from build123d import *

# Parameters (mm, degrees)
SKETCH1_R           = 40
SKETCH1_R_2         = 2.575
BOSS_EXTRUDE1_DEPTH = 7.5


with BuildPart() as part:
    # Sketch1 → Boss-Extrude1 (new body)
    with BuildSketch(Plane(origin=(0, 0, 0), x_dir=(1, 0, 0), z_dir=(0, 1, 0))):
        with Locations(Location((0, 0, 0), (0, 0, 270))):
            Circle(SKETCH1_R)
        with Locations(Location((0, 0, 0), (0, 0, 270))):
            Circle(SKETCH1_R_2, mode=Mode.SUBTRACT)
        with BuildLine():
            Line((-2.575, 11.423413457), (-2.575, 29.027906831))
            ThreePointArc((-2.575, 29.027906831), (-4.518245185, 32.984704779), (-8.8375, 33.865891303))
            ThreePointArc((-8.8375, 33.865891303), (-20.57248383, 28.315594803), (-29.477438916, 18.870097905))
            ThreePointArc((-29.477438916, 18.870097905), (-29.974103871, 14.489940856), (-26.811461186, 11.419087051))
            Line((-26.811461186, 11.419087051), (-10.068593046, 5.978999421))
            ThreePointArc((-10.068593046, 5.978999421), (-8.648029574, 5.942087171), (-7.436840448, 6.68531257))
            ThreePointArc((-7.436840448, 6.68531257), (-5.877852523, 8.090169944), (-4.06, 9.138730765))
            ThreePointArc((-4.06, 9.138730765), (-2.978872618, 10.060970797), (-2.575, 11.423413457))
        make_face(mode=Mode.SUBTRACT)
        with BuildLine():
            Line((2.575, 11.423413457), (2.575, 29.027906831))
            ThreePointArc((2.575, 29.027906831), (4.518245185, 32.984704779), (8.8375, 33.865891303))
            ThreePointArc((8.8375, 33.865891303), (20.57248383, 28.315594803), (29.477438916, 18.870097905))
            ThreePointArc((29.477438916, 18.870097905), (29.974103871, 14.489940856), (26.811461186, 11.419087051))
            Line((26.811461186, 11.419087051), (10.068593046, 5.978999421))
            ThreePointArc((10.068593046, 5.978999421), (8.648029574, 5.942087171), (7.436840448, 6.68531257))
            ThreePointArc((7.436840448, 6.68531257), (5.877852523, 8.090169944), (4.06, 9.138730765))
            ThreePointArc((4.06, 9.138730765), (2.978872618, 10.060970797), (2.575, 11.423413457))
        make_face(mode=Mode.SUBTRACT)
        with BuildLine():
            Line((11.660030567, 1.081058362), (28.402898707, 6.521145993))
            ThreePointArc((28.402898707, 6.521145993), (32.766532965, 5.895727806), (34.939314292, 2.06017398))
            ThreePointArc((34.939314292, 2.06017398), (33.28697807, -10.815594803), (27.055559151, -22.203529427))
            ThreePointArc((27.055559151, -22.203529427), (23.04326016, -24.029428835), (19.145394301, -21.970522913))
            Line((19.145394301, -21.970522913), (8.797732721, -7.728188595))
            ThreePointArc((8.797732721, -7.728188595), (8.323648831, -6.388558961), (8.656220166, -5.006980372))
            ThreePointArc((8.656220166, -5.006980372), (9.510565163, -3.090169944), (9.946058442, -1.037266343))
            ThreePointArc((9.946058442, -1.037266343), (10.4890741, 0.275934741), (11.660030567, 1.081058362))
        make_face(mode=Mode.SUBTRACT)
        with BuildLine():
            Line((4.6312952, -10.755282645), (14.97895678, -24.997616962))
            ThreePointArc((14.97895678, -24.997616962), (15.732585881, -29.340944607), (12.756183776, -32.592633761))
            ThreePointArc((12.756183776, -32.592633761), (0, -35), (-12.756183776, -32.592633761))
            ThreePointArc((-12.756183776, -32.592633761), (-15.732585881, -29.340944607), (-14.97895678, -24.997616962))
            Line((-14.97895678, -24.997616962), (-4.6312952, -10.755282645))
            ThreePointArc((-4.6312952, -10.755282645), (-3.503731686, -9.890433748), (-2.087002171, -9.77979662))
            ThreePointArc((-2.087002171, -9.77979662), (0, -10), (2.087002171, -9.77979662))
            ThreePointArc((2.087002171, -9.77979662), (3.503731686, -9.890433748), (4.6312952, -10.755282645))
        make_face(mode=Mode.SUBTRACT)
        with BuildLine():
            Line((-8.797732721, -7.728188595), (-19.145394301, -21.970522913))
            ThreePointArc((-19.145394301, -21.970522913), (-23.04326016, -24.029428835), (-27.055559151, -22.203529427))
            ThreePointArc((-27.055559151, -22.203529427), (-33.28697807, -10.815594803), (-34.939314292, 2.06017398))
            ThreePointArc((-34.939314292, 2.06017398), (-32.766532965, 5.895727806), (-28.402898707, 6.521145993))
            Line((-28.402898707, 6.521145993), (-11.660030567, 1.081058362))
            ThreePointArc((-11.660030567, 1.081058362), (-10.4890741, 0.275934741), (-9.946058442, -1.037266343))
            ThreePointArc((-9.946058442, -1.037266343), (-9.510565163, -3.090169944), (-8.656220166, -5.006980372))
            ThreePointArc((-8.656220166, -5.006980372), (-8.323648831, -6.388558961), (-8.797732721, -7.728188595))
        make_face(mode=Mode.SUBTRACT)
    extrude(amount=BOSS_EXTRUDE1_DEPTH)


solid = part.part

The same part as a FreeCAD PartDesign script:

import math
import FreeCAD as App
import Part
import Sketcher
from FreeCAD import Vector
Q = App.Units.Quantity

doc = App.newDocument("Part")
body = doc.addObject("PartDesign::Body", "Body")

# Sketch on XZ plane
sketch1 = doc.addObject("Sketcher::SketchObject", "Sketch")
body.addObject(sketch1)
sketch1.AttachmentSupport = (doc.XZ_Plane, [""])
sketch1.MapMode = "FlatFace"
sketch1.addGeometry(Part.Circle(Vector(0, 0, 0), Vector(0, 0, 1), 40), False)
sketch1.addGeometry(Part.LineSegment(Vector(-2.6, -29, 0), Vector(-2.6, -11.4, 0)), False)
sketch1.addGeometry(Part.ArcOfCircle(Part.Circle(Vector(-5.1, -11.4, 0), Vector(0, 0, 1), 2.5), math.radians(0), math.radians(66)), False)
sketch1.addGeometry(Part.ArcOfCircle(Part.Circle(Vector(0, 0, 0), Vector(0, 0, 1), 10), math.radians(-138), math.radians(-114)), False)
sketch1.addGeometry(Part.ArcOfCircle(Part.Circle(Vector(-9.3, -8.4, 0), Vector(0, 0, 1), 2.5), math.radians(42), math.radians(108)), False)
sketch1.addGeometry(Part.LineSegment(Vector(-10.1, -6, 0), Vector(-26.8, -11.4, 0)), False)
sketch1.addGeometry(Part.ArcOfCircle(Part.Circle(Vector(-25.3, -16.2, 0), Vector(0, 0, 1), 5), math.radians(108), math.radians(213)), False)
sketch1.addGeometry(Part.ArcOfCircle(Part.Circle(Vector(0, 0, 0), Vector(0, 0, 1), 35), math.radians(-147), math.radians(-105)), False)
sketch1.addGeometry(Part.ArcOfCircle(Part.Circle(Vector(-7.6, -29, 0), Vector(0, 0, 1), 5), math.radians(-105), math.radians(0)), False)
sketch1.addGeometry(Part.ArcOfCircle(Part.Circle(Vector(-10.8, 6.3, 0), Vector(0, 0, 1), 2.5), math.radians(-30), math.radians(36)), False)
sketch1.addGeometry(Part.LineSegment(Vector(-8.8, 7.7, 0), Vector(-19.1, 22, 0)), False)
sketch1.addGeometry(Part.ArcOfCircle(Part.Circle(Vector(-23.2, 19, 0), Vector(0, 0, 1), 5), math.radians(36), math.radians(141)), False)
sketch1.addGeometry(Part.ArcOfCircle(Part.Circle(Vector(0, 0, 0), Vector(0, 0, 1), 35), math.radians(141), math.radians(183)), False)
sketch1.addGeometry(Part.ArcOfCircle(Part.Circle(Vector(-29.9, -1.8, 0), Vector(0, 0, 1), 5), math.radians(-177), math.radians(-72)), False)
sketch1.addGeometry(Part.LineSegment(Vector(-28.4, -6.5, 0), Vector(-11.7, -1.1, 0)), False)
sketch1.addGeometry(Part.ArcOfCircle(Part.Circle(Vector(-12.4, 1.3, 0), Vector(0, 0, 1), 2.5), math.radians(-72), math.radians(-6)), False)
sketch1.addGeometry(Part.ArcOfCircle(Part.Circle(Vector(0, 0, 0), Vector(0, 0, 1), 10), math.radians(150), math.radians(174)), False)
sketch1.addGeometry(Part.ArcOfCircle(Part.Circle(Vector(5.1, -11.4, 0), Vector(0, 0, 1), 2.5), math.radians(114), math.radians(180)), False)
sketch1.addGeometry(Part.LineSegment(Vector(2.6, -11.4, 0), Vector(2.6, -29, 0)), False)
sketch1.addGeometry(Part.ArcOfCircle(Part.Circle(Vector(7.6, -29, 0), Vector(0, 0, 1), 5), math.radians(180), math.radians(285)), False)
sketch1.addGeometry(Part.ArcOfCircle(Part.Circle(Vector(0, 0, 0), Vector(0, 0, 1), 35), math.radians(-75), math.radians(-33)), False)
sketch1.addGeometry(Part.ArcOfCircle(Part.Circle(Vector(25.3, -16.2, 0), Vector(0, 0, 1), 5), math.radians(-33), math.radians(72)), False)
sketch1.addGeometry(Part.LineSegment(Vector(26.8, -11.4, 0), Vector(10.1, -6, 0)), False)
sketch1.addGeometry(Part.ArcOfCircle(Part.Circle(Vector(9.3, -8.4, 0), Vector(0, 0, 1), 2.5), math.radians(72), math.radians(138)), False)
sketch1.addGeometry(Part.ArcOfCircle(Part.Circle(Vector(0, 0, 0), Vector(0, 0, 1), 10), math.radians(-66), math.radians(-42)), False)
sketch1.addGeometry(Part.Circle(Vector(0, 0, 0), Vector(0, 0, 1), 2.6), False)
sketch1.addGeometry(Part.ArcOfCircle(Part.Circle(Vector(2.6, 12.2, 0), Vector(0, 0, 1), 2.5), math.radians(-102), math.radians(-36)), False)
sketch1.addGeometry(Part.LineSegment(Vector(4.6, 10.8, 0), Vector(15, 25, 0)), False)
sketch1.addGeometry(Part.ArcOfCircle(Part.Circle(Vector(10.9, 27.9, 0), Vector(0, 0, 1), 5), math.radians(-36), math.radians(69)), False)
sketch1.addGeometry(Part.ArcOfCircle(Part.Circle(Vector(0, 0, 0), Vector(0, 0, 1), 35), math.radians(69), math.radians(111)), False)
sketch1.addGeometry(Part.ArcOfCircle(Part.Circle(Vector(-10.9, 27.9, 0), Vector(0, 0, 1), 5), math.radians(111), math.radians(216)), False)
sketch1.addGeometry(Part.LineSegment(Vector(-15, 25, 0), Vector(-4.6, 10.8, 0)), False)
sketch1.addGeometry(Part.ArcOfCircle(Part.Circle(Vector(-2.6, 12.2, 0), Vector(0, 0, 1), 2.5), math.radians(-144), math.radians(-78)), False)
sketch1.addGeometry(Part.ArcOfCircle(Part.Circle(Vector(0, 0, 0), Vector(0, 0, 1), 10), math.radians(78), math.radians(102)), False)
sketch1.addGeometry(Part.ArcOfCircle(Part.Circle(Vector(12.4, 1.3, 0), Vector(0, 0, 1), 2.5), math.radians(-174), math.radians(-108)), False)
sketch1.addGeometry(Part.LineSegment(Vector(11.7, -1.1, 0), Vector(28.4, -6.5, 0)), False)
sketch1.addGeometry(Part.ArcOfCircle(Part.Circle(Vector(29.9, -1.8, 0), Vector(0, 0, 1), 5), math.radians(-108), math.radians(-3)), False)
sketch1.addGeometry(Part.ArcOfCircle(Part.Circle(Vector(0, 0, 0), Vector(0, 0, 1), 35), math.radians(-3), math.radians(39)), False)
sketch1.addGeometry(Part.ArcOfCircle(Part.Circle(Vector(23.2, 19, 0), Vector(0, 0, 1), 5), math.radians(39), math.radians(144)), False)
sketch1.addGeometry(Part.LineSegment(Vector(19.1, 22, 0), Vector(8.8, 7.7, 0)), False)
sketch1.addGeometry(Part.ArcOfCircle(Part.Circle(Vector(10.8, 6.3, 0), Vector(0, 0, 1), 2.5), math.radians(144), math.radians(210)), False)
sketch1.addGeometry(Part.ArcOfCircle(Part.Circle(Vector(0, 0, 0), Vector(0, 0, 1), 10), math.radians(6), math.radians(30)), False)
sketch1.addConstraint(Sketcher.Constraint("Tangent", 1, 2, 2, 1))
sketch1.addConstraint(Sketcher.Constraint("Tangent", 2, 2, 3, 2))
sketch1.addConstraint(Sketcher.Constraint("Tangent", 3, 1, 4, 1))
sketch1.addConstraint(Sketcher.Constraint("Tangent", 4, 2, 5, 1))
sketch1.addConstraint(Sketcher.Constraint("Tangent", 5, 2, 6, 1))
sketch1.addConstraint(Sketcher.Constraint("Tangent", 6, 2, 7, 1))
sketch1.addConstraint(Sketcher.Constraint("Tangent", 7, 2, 8, 1))
sketch1.addConstraint(Sketcher.Constraint("Tangent", 8, 2, 1, 1))
sketch1.addConstraint(Sketcher.Constraint("Tangent", 9, 2, 10, 1))
sketch1.addConstraint(Sketcher.Constraint("Tangent", 10, 2, 11, 1))
sketch1.addConstraint(Sketcher.Constraint("Tangent", 11, 2, 12, 1))
sketch1.addConstraint(Sketcher.Constraint("Tangent", 12, 2, 13, 1))
sketch1.addConstraint(Sketcher.Constraint("Tangent", 13, 2, 14, 1))
sketch1.addConstraint(Sketcher.Constraint("Tangent", 14, 2, 15, 1))
sketch1.addConstraint(Sketcher.Constraint("Tangent", 15, 2, 16, 2))
sketch1.addConstraint(Sketcher.Constraint("Tangent", 16, 1, 9, 1))
sketch1.addConstraint(Sketcher.Constraint("Tangent", 17, 2, 18, 1))
sketch1.addConstraint(Sketcher.Constraint("Tangent", 18, 2, 19, 1))
sketch1.addConstraint(Sketcher.Constraint("Tangent", 19, 2, 20, 1))
sketch1.addConstraint(Sketcher.Constraint("Tangent", 20, 2, 21, 1))
sketch1.addConstraint(Sketcher.Constraint("Tangent", 21, 2, 22, 1))
sketch1.addConstraint(Sketcher.Constraint("Tangent", 22, 2, 23, 1))
sketch1.addConstraint(Sketcher.Constraint("Tangent", 23, 2, 24, 2))
sketch1.addConstraint(Sketcher.Constraint("Tangent", 24, 1, 17, 1))
sketch1.addConstraint(Sketcher.Constraint("Tangent", 26, 2, 27, 1))
sketch1.addConstraint(Sketcher.Constraint("Tangent", 27, 2, 28, 1))
sketch1.addConstraint(Sketcher.Constraint("Tangent", 28, 2, 29, 1))
sketch1.addConstraint(Sketcher.Constraint("Tangent", 29, 2, 30, 1))
sketch1.addConstraint(Sketcher.Constraint("Tangent", 30, 2, 31, 1))
sketch1.addConstraint(Sketcher.Constraint("Tangent", 31, 2, 32, 1))
sketch1.addConstraint(Sketcher.Constraint("Tangent", 32, 2, 33, 2))
sketch1.addConstraint(Sketcher.Constraint("Tangent", 33, 1, 26, 1))
sketch1.addConstraint(Sketcher.Constraint("Tangent", 34, 2, 35, 1))
sketch1.addConstraint(Sketcher.Constraint("Tangent", 35, 2, 36, 1))
sketch1.addConstraint(Sketcher.Constraint("Tangent", 36, 2, 37, 1))
sketch1.addConstraint(Sketcher.Constraint("Tangent", 37, 2, 38, 1))
sketch1.addConstraint(Sketcher.Constraint("Tangent", 38, 2, 39, 1))
sketch1.addConstraint(Sketcher.Constraint("Tangent", 39, 2, 40, 1))
sketch1.addConstraint(Sketcher.Constraint("Tangent", 40, 2, 41, 2))
sketch1.addConstraint(Sketcher.Constraint("Tangent", 41, 1, 34, 1))
sketch1.addConstraint(Sketcher.Constraint("Vertical", 1))
sketch1.addConstraint(Sketcher.Constraint("Vertical", 18))
sketch1.addConstraint(Sketcher.Constraint("Coincident", 0, 3, -1, 1))
sketch1.addConstraint(Sketcher.Constraint("Coincident", 3, 3, -1, 1))
sketch1.addConstraint(Sketcher.Constraint("Coincident", 7, 3, -1, 1))
sketch1.addConstraint(Sketcher.Constraint("Coincident", 12, 3, -1, 1))
sketch1.addConstraint(Sketcher.Constraint("Coincident", 16, 3, -1, 1))
sketch1.addConstraint(Sketcher.Constraint("Coincident", 20, 3, -1, 1))
sketch1.addConstraint(Sketcher.Constraint("Coincident", 24, 3, -1, 1))
sketch1.addConstraint(Sketcher.Constraint("Coincident", 25, 3, -1, 1))
sketch1.addConstraint(Sketcher.Constraint("Coincident", 29, 3, -1, 1))
sketch1.addConstraint(Sketcher.Constraint("Coincident", 33, 3, -1, 1))
sketch1.addConstraint(Sketcher.Constraint("Coincident", 37, 3, -1, 1))
sketch1.addConstraint(Sketcher.Constraint("Coincident", 41, 3, -1, 1))
sketch1.addConstraint(Sketcher.Constraint("Equal", 2, 4))
sketch1.addConstraint(Sketcher.Constraint("Equal", 6, 8))
sketch1.addConstraint(Sketcher.Constraint("Equal", 4, 9))
sketch1.addConstraint(Sketcher.Constraint("Equal", 8, 11))
sketch1.addConstraint(Sketcher.Constraint("Equal", 7, 12))
sketch1.addConstraint(Sketcher.Constraint("Equal", 11, 13))
sketch1.addConstraint(Sketcher.Constraint("Equal", 9, 15))
sketch1.addConstraint(Sketcher.Constraint("Equal", 3, 16))
sketch1.addConstraint(Sketcher.Constraint("Equal", 15, 17))
sketch1.addConstraint(Sketcher.Constraint("Equal", 13, 19))
sketch1.addConstraint(Sketcher.Constraint("Equal", 12, 20))
sketch1.addConstraint(Sketcher.Constraint("Equal", 19, 21))
sketch1.addConstraint(Sketcher.Constraint("Equal", 17, 23))
sketch1.addConstraint(Sketcher.Constraint("Equal", 16, 24))
sketch1.addConstraint(Sketcher.Constraint("Equal", 23, 26))
sketch1.addConstraint(Sketcher.Constraint("Equal", 21, 28))
sketch1.addConstraint(Sketcher.Constraint("Equal", 20, 29))
sketch1.addConstraint(Sketcher.Constraint("Equal", 28, 30))
sketch1.addConstraint(Sketcher.Constraint("Equal", 26, 32))
sketch1.addConstraint(Sketcher.Constraint("Equal", 24, 33))
sketch1.addConstraint(Sketcher.Constraint("Equal", 32, 34))
sketch1.addConstraint(Sketcher.Constraint("Equal", 30, 36))
sketch1.addConstraint(Sketcher.Constraint("Equal", 29, 37))
sketch1.addConstraint(Sketcher.Constraint("Equal", 36, 38))
sketch1.addConstraint(Sketcher.Constraint("Equal", 34, 40))
sketch1.addConstraint(Sketcher.Constraint("Equal", 33, 41))
sketch1.addConstraint(Sketcher.Constraint("Symmetric", 5, 2, 21, 2, -2))
sketch1.addConstraint(Sketcher.Constraint("Symmetric", 27, 2, 30, 2, -2))
sketch1.addConstraint(Sketcher.Constraint("Symmetric", 14, 2, 34, 2, -2))
sketch1.addConstraint(Sketcher.Constraint("Symmetric", 10, 2, 38, 2, -2))
sketch1.addConstraint(Sketcher.Constraint("Parallel", 5, 14))
sketch1.addConstraint(Sketcher.Constraint("Parallel", 10, 31))
sketch1.addConstraint(Sketcher.Constraint("Horizontal", 2, 3, 17, 3))
sketch1.addConstraint(Sketcher.Constraint("Equal", 5, 10))
sketch1.addConstraint(Sketcher.Constraint("Equal", 10, 14))
sketch1.addConstraint(Sketcher.Constraint("Equal", 22, 27))
sketch1.addConstraint(Sketcher.Constraint("Diameter", 0, 80.0))
sketch1.addConstraint(Sketcher.Constraint("Radius", 3, 10.0))
sketch1.addConstraint(Sketcher.Constraint("Radius", 6, 5.0))
sketch1.addConstraint(Sketcher.Constraint("Radius", 7, 35.0))
sketch1.addConstraint(Sketcher.Constraint("Radius", 2, 2.5))
sketch1.addConstraint(Sketcher.Constraint("Diameter", 25, 5.15))
sketch1.addConstraint(Sketcher.Constraint("Angle", 5, Q("-162 deg")))
sketch1.addConstraint(Sketcher.Constraint("Angle", 10, Q("126 deg")))
sketch1.addConstraint(Sketcher.Constraint("DistanceX", 2, 2, -1, 1, 4.06))
sketch1.addConstraint(Sketcher.Constraint("DistanceY", 4, 2, -1, 1, 5.978999))
pad1 = doc.addObject("PartDesign::Pad", "Pad")
body.addObject(pad1)
pad1.Profile = sketch1
pad1.Length = 7.5
pad1.Reversed = True

doc.recompute()
